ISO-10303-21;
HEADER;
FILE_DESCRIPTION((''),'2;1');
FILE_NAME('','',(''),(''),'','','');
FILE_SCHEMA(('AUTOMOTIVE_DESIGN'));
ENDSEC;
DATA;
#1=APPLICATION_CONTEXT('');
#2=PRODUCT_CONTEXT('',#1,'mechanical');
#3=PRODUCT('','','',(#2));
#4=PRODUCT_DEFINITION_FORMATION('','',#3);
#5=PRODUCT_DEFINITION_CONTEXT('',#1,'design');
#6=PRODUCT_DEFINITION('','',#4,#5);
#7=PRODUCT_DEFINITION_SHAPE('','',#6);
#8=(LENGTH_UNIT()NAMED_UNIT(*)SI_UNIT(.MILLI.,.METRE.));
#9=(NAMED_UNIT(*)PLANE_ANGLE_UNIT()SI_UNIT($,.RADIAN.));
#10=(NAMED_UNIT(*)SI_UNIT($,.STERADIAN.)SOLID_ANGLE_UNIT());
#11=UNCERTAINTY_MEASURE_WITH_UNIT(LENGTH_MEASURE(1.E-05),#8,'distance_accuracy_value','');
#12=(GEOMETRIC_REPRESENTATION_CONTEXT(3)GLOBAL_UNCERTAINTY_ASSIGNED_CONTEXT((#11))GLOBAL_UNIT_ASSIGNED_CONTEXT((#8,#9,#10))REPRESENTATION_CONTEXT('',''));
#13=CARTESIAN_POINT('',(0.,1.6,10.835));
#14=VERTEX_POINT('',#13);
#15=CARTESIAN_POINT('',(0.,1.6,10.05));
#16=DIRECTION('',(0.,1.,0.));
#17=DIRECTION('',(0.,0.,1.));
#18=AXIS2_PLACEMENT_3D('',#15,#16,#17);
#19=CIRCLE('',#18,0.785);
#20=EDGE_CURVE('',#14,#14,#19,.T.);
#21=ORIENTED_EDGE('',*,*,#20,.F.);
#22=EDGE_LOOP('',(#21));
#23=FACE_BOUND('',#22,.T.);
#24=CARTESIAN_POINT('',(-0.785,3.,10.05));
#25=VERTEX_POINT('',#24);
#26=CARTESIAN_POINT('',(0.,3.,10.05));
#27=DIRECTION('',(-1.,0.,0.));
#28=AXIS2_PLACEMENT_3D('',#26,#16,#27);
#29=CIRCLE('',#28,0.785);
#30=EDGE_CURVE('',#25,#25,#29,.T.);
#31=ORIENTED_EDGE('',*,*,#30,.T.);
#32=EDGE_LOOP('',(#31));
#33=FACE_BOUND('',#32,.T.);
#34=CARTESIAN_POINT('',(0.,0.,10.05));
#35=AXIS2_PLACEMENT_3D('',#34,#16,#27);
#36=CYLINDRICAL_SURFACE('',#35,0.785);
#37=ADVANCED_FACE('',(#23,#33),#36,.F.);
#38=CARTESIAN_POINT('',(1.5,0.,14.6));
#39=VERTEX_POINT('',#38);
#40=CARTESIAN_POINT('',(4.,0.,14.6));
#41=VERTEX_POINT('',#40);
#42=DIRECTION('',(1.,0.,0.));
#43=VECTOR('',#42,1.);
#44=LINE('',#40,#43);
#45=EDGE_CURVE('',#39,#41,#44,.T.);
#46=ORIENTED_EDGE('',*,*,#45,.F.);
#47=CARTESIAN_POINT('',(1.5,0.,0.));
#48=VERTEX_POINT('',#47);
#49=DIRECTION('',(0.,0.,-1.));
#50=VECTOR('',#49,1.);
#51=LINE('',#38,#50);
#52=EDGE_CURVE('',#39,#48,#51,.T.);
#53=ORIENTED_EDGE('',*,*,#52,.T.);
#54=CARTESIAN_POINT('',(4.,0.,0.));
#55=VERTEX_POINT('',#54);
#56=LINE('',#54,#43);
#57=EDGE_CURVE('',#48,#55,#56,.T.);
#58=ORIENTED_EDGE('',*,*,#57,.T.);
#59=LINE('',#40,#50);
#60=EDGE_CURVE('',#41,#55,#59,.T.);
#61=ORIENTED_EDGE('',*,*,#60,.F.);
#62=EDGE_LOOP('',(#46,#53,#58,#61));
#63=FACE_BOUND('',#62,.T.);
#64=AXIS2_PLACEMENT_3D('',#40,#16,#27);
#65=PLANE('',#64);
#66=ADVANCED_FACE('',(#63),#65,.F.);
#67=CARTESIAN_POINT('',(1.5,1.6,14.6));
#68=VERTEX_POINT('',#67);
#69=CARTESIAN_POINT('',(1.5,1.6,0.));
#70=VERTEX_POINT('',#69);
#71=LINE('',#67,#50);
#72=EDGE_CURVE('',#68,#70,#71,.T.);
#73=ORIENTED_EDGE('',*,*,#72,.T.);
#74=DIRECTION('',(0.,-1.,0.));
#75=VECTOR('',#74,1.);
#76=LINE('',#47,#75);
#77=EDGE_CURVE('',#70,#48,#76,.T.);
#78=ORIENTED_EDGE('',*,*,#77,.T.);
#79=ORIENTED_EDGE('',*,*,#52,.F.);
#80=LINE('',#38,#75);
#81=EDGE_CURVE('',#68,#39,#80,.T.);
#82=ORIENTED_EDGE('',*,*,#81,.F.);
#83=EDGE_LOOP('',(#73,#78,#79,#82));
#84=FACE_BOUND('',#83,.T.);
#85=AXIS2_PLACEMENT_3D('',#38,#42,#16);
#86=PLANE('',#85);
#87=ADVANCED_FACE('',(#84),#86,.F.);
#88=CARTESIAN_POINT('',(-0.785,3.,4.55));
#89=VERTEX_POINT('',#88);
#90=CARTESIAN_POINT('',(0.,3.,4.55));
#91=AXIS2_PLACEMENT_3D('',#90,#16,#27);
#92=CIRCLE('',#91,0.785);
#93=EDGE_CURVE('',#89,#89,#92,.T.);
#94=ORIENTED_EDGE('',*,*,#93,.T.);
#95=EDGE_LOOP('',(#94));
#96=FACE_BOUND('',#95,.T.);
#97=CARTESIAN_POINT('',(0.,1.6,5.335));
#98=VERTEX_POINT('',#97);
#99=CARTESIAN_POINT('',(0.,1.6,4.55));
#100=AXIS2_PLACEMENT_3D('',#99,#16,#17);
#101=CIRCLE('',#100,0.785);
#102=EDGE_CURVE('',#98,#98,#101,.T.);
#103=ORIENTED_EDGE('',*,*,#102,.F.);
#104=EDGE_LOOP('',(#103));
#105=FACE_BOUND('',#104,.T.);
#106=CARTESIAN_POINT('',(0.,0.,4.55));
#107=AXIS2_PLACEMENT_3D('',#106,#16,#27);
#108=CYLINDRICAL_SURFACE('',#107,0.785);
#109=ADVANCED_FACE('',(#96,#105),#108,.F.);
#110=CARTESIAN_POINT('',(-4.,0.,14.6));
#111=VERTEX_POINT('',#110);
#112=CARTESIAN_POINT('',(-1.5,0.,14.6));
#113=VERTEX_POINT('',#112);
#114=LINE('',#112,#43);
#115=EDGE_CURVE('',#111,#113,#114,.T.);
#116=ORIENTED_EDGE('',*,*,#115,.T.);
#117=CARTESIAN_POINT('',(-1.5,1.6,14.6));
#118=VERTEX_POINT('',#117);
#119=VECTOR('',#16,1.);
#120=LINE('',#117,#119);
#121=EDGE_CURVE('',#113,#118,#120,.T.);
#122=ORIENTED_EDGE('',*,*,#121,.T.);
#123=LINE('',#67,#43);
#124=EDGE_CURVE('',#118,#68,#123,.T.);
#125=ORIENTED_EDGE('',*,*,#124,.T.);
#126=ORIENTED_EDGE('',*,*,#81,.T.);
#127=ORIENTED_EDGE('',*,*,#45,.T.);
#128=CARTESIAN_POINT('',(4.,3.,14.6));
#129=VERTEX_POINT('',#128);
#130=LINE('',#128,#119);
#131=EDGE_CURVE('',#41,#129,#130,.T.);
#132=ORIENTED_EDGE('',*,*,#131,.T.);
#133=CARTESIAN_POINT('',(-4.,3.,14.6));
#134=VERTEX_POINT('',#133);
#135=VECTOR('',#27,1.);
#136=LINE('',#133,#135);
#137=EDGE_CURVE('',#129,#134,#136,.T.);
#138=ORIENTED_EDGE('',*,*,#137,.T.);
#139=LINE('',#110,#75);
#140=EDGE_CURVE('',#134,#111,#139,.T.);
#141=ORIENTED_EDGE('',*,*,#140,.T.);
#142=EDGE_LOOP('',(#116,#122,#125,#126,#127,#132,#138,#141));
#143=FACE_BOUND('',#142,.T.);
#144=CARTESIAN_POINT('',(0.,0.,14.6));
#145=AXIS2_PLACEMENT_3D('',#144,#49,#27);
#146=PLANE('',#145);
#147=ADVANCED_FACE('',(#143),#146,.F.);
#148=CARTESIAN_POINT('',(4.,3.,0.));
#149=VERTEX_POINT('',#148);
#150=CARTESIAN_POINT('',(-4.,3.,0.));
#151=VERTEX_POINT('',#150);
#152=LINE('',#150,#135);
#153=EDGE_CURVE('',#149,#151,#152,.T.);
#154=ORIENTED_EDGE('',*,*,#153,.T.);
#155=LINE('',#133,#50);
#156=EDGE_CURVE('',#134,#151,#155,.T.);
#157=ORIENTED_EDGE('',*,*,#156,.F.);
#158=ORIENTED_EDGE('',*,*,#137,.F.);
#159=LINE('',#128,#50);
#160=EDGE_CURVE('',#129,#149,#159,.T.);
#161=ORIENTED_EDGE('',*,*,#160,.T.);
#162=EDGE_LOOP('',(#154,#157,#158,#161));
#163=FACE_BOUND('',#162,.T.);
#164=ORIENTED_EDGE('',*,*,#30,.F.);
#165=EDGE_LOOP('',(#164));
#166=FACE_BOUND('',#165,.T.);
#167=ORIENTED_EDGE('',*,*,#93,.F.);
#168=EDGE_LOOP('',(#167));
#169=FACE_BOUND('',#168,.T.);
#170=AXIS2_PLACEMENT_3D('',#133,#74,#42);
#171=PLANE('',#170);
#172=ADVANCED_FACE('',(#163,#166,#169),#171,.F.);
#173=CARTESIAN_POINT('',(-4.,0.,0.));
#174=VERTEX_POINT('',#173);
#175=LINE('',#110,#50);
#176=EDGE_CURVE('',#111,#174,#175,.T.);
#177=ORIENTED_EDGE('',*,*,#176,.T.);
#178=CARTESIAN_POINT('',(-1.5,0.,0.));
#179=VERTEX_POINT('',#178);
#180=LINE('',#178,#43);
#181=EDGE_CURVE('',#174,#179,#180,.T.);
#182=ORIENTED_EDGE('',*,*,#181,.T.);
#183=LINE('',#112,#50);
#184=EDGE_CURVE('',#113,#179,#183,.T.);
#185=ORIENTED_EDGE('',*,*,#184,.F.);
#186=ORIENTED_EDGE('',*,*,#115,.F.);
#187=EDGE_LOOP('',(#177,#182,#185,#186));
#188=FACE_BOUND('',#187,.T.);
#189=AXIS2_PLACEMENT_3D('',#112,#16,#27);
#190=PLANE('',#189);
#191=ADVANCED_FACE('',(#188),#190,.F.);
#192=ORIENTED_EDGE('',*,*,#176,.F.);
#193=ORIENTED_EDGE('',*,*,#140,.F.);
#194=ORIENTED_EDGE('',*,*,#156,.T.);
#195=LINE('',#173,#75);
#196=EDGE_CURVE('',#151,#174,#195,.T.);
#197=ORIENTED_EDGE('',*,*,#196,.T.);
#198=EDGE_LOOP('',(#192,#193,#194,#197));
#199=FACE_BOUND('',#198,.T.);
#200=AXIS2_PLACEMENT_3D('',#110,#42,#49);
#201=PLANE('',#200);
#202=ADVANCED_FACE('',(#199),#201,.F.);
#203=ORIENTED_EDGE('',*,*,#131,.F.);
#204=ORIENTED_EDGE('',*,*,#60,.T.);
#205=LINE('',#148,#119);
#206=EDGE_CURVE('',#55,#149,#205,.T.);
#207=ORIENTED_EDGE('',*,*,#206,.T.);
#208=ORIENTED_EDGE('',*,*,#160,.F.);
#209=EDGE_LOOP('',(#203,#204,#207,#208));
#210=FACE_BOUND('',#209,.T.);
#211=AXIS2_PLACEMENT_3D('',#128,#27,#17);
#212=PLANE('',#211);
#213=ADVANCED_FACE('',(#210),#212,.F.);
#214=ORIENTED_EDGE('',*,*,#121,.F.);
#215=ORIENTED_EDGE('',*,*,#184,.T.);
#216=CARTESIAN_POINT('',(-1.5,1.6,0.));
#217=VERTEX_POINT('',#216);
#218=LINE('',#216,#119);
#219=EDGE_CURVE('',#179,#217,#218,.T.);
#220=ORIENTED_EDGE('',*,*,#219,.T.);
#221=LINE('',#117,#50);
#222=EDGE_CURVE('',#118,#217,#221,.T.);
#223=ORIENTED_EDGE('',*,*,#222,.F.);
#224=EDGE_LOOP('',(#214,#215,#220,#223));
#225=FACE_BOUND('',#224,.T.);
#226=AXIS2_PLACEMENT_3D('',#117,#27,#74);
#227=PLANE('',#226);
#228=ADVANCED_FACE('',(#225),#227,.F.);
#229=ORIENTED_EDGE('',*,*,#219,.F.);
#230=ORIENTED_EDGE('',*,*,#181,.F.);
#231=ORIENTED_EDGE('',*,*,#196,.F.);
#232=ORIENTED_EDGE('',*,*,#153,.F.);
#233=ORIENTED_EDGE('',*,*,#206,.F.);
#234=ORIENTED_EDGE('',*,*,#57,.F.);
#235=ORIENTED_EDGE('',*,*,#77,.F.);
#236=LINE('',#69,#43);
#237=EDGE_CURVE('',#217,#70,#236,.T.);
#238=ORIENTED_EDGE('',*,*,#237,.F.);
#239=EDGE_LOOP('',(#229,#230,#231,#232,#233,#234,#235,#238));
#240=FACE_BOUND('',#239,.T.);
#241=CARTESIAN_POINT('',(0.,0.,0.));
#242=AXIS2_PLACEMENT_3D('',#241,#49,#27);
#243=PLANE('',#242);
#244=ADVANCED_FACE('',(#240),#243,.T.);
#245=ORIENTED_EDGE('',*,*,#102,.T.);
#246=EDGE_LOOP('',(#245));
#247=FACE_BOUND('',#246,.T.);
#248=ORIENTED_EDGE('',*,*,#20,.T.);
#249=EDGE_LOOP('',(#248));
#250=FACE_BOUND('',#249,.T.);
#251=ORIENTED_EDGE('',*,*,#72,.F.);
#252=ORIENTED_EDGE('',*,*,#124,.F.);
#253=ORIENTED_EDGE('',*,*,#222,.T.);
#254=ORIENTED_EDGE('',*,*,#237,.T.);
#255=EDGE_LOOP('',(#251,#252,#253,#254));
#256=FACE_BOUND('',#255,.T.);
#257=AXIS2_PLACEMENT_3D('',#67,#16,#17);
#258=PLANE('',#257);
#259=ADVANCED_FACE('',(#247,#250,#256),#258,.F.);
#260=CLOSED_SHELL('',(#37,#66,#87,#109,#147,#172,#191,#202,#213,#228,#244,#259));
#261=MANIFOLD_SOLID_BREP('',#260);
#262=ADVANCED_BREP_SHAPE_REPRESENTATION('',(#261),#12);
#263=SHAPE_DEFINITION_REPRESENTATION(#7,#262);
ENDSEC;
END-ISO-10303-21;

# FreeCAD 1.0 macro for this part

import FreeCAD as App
import Part
import Sketcher
from FreeCAD import Vector
Q = App.Units.Quantity

doc = App.newDocument("Part")
params = doc.addObject("Spreadsheet::Sheet", "Params")
for row, (alias, value) in enumerate([
    ("sketch1_width", "3 mm"),
    ("sketch1_width2", "8 mm"),
    ("sketch1_height", "1.6 mm"),
    ("pad1_length", "14.6 mm"),
    ("sketch2_diameter", "1.57 mm"),
], start=1):
    params.set(f"A{row}", alias)
    params.set(f"B{row}", "=" + value)
    params.setAlias(f"B{row}", alias)

body = doc.addObject("PartDesign::Body", "Body")

sketch1 = doc.addObject("Sketcher::SketchObject", "Sketch")
body.addObject(sketch1)
sketch1.AttachmentSupport = (doc.XY_Plane, [""])
sketch1.MapMode = "FlatFace"
sketch1.addGeometry(Part.LineSegment(Vector(-4, 0, 0), Vector(-1.5, 0, 0)), False)
sketch1.addGeometry(Part.LineSegment(Vector(-1.5, 0, 0), Vector(-1.5, 1.6, 0)), False)
sketch1.addGeometry(Part.LineSegment(Vector(-1.5, 1.6, 0), Vector(1.5, 1.6, 0)), False)
sketch1.addGeometry(Part.LineSegment(Vector(1.5, 1.6, 0), Vector(1.5, 0, 0)), False)
sketch1.addGeometry(Part.LineSegment(Vector(1.5, 0, 0), Vector(4, 0, 0)), False)
sketch1.addGeometry(Part.LineSegment(Vector(4, 0, 0), Vector(4, 3, 0)), False)
sketch1.addGeometry(Part.LineSegment(Vector(4, 3, 0), Vector(-4, 3, 0)), False)
sketch1.addGeometry(Part.LineSegment(Vector(-4, 3, 0), Vector(-4, 0, 0)), False)
sketch1.addConstraint(Sketcher.Constraint("Coincident", 0, 2, 1, 1))
sketch1.addConstraint(Sketcher.Constraint("Coincident", 1, 2, 2, 1))
sketch1.addConstraint(Sketcher.Constraint("Coincident", 2, 2, 3, 1))
sketch1.addConstraint(Sketcher.Constraint("Coincident", 3, 2, 4, 1))
sketch1.addConstraint(Sketcher.Constraint("Coincident", 4, 2, 5, 1))
sketch1.addConstraint(Sketcher.Constraint("Coincident", 5, 2, 6, 1))
sketch1.addConstraint(Sketcher.Constraint("Coincident", 6, 2, 7, 1))
sketch1.addConstraint(Sketcher.Constraint("Coincident", 7, 2, 0, 1))
sketch1.addConstraint(Sketcher.Constraint("Horizontal", 0))
sketch1.addConstraint(Sketcher.Constraint("Vertical", 1))
sketch1.addConstraint(Sketcher.Constraint("Horizontal", 2))
sketch1.addConstraint(Sketcher.Constraint("Vertical", 3))
sketch1.addConstraint(Sketcher.Constraint("Horizontal", 4))
sketch1.addConstraint(Sketcher.Constraint("Vertical", 5))
sketch1.addConstraint(Sketcher.Constraint("Horizontal", 6))
sketch1.addConstraint(Sketcher.Constraint("Vertical", 7))
sketch1.addConstraint(Sketcher.Constraint("Symmetric", 0, 2, 3, 2, -1, 1))
sketch1.addConstraint(Sketcher.Constraint("Symmetric", 4, 2, 7, 2, -2))
sketch1.addConstraint(Sketcher.Constraint("Equal", 2, 5))
sketch1.addConstraint(Sketcher.Constraint("DistanceX", 2, 1, 2, 2, Q("3 mm")))
sketch1.addConstraint(Sketcher.Constraint("DistanceX", 6, 2, 6, 1, Q("8 mm")))
sketch1.addConstraint(Sketcher.Constraint("DistanceY", 1, 1, 1, 2, Q("1.6 mm")))
sketch1.setExpression("Constraints[19]", "Params.sketch1_width")
sketch1.setExpression("Constraints[20]", "Params.sketch1_width2")
sketch1.setExpression("Constraints[21]", "Params.sketch1_height")
pad1 = doc.addObject("PartDesign::Pad", "Pad")
body.addObject(pad1)
pad1.Profile = sketch1
pad1.setExpression("Length", "Params.pad1_length")

sketch2 = doc.addObject("Sketcher::SketchObject", "Sketch001")
body.addObject(sketch2)
sketch2.AttachmentSupport = (doc.XZ_Plane, [""])
sketch2.MapMode = "FlatFace"
sketch2.AttachmentOffset = App.Placement(Vector(0, 0, -3), App.Rotation())
sketch2.addGeometry(Part.Circle(Vector(0, 10.1, 0), Vector(0, 0, 1), 0.8), False)
sketch2.addGeometry(Part.Circle(Vector(0, 4.5, 0), Vector(0, 0, 1), 0.8), False)
sketch2.addConstraint(Sketcher.Constraint("Equal", 0, 1))
sketch2.addConstraint(Sketcher.Constraint("PointOnObject", 0, 3, -2))
sketch2.addConstraint(Sketcher.Constraint("PointOnObject", 1, 3, -2))
sketch2.addConstraint(Sketcher.Constraint("Diameter", 0, Q("1.57 mm")))
sketch2.addConstraint(Sketcher.Constraint("DistanceY", 1, 3, 0, 3, Q("5.5 mm")))
sketch2.addConstraint(Sketcher.Constraint("DistanceY", -1, 1, 0, 3, Q("10.05 mm")))
sketch2.setExpression("Constraints[3]", "Params.sketch2_diameter")
pocket1 = doc.addObject("PartDesign::Pocket", "Pocket")
body.addObject(pocket1)
pocket1.Profile = sketch2
pocket1.Type = "ThroughAll"
pocket1.Reversed = True

doc.recompute()
